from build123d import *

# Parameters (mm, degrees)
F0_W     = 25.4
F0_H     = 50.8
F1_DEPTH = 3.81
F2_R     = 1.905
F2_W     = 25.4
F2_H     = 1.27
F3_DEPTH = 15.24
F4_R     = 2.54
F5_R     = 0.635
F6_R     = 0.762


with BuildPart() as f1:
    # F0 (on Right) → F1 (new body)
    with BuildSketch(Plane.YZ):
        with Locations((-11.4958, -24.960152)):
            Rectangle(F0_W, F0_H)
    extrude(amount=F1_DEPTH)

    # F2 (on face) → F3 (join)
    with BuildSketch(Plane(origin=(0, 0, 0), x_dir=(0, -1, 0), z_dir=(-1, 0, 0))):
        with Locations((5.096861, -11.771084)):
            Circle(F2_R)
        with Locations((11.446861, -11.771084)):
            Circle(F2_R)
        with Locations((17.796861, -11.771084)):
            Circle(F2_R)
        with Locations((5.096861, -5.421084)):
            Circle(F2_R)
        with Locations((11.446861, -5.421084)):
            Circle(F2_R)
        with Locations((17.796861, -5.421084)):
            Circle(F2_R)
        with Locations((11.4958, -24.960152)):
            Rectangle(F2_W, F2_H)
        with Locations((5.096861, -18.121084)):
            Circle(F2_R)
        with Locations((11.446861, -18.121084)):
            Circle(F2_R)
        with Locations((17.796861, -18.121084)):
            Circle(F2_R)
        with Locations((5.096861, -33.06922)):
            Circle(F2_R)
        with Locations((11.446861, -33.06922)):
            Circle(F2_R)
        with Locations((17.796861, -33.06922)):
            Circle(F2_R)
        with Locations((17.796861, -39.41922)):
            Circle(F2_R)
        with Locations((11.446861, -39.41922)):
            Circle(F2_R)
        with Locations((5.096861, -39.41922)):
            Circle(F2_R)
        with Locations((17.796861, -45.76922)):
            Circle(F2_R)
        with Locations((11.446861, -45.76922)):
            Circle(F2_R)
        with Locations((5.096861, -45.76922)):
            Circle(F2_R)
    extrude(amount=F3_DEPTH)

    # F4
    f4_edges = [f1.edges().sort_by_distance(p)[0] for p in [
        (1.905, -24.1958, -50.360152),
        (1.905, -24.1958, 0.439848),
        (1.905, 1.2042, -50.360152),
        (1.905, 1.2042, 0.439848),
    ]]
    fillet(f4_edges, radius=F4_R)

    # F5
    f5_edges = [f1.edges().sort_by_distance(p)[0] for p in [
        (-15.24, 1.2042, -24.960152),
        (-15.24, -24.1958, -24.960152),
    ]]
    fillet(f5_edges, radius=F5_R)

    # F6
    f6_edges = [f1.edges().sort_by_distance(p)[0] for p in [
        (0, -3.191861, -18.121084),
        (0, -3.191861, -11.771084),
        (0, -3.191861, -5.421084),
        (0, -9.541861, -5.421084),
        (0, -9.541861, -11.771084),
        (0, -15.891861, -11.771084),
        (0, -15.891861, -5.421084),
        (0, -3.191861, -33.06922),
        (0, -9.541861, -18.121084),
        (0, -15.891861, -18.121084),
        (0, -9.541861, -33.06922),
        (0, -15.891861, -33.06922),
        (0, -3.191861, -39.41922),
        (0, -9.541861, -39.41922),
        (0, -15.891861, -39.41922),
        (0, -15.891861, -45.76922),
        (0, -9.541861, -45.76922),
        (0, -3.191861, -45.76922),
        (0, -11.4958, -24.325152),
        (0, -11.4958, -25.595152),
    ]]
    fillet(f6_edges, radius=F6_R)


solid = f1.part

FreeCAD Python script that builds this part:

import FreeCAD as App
import Part
import Sketcher

V = App.Vector
Q = App.Units.Quantity


def edges_at(feature, points):
    """Names of the edges that pass closest to the given points."""
    edges = feature.Shape.Edges
    near = lambda p: min(range(len(edges)), key=lambda i: edges[i].distToShape(Part.Vertex(*p))[0])
    return sorted({f"Edge{near(p) + 1}" for p in points})

doc = App.newDocument("Part")
body = doc.addObject("PartDesign::Body", "Body")

sketch1 = doc.addObject("Sketcher::SketchObject", "Sketch")
body.addObject(sketch1)
sketch1.AttachmentSupport = (doc.YZ_Plane, [""])
sketch1.MapMode = "FlatFace"
sketch1.addGeometry(Part.LineSegment(V(-24, 0, 0), V(-24, -50, 0)), False)
sketch1.addGeometry(Part.LineSegment(V(-24, -50, 0), V(1, -50, 0)), False)
sketch1.addGeometry(Part.LineSegment(V(1, -50, 0), V(1, 0, 0)), False)
sketch1.addGeometry(Part.LineSegment(V(1, 0, 0), V(-24, 0, 0)), False)
sketch1.addConstraint(Sketcher.Constraint("Coincident", 0, 2, 1, 1))
sketch1.addConstraint(Sketcher.Constraint("Coincident", 1, 2, 2, 1))
sketch1.addConstraint(Sketcher.Constraint("Coincident", 2, 2, 3, 1))
sketch1.addConstraint(Sketcher.Constraint("Coincident", 3, 2, 0, 1))
sketch1.addConstraint(Sketcher.Constraint("Vertical", 0))
sketch1.addConstraint(Sketcher.Constraint("Horizontal", 1))
sketch1.addConstraint(Sketcher.Constraint("Vertical", 2))
sketch1.addConstraint(Sketcher.Constraint("Horizontal", 3))
sketch1.addConstraint(Sketcher.Constraint("DistanceX", 1, 1, 1, 2, Q("1 in")))
sketch1.addConstraint(Sketcher.Constraint("DistanceY", 0, 2, 0, 1, Q("2 in")))
sketch1.addConstraint(Sketcher.Constraint("DistanceX", 0, 2, -1, 1, Q("24.1958 mm")))
sketch1.addConstraint(Sketcher.Constraint("DistanceY", 0, 2, -1, 1, Q("50.360152 mm")))
pad1 = doc.addObject("PartDesign::Pad", "Pad")
body.addObject(pad1)
pad1.Profile = sketch1
pad1.Length = Q("0.15 in")

sketch2 = doc.addObject("Sketcher::SketchObject", "Sketch001")
body.addObject(sketch2)
sketch2.AttachmentSupport = (doc.YZ_Plane, [""])
sketch2.MapMode = "FlatFace"
sketch2.addGeometry(Part.Circle(V(-5.1, -11.8, 0), V(0, 0, 1), 1.9), False)
sketch2.addGeometry(Part.Circle(V(-11.4, -11.8, 0), V(0, 0, 1), 1.9), False)
sketch2.addGeometry(Part.Circle(V(-17.8, -11.8, 0), V(0, 0, 1), 1.9), False)
sketch2.addGeometry(Part.Circle(V(-5.1, -5.4, 0), V(0, 0, 1), 1.9), False)
sketch2.addGeometry(Part.Circle(V(-11.4, -5.4, 0), V(0, 0, 1), 1.9), False)
sketch2.addGeometry(Part.Circle(V(-17.8, -5.4, 0), V(0, 0, 1), 1.9), False)
sketch2.addGeometry(Part.LineSegment(V(1.2, -24.3, 0), V(1.2, -25.6, 0)), False)
sketch2.addGeometry(Part.LineSegment(V(1.2, -25.6, 0), V(-24.2, -25.6, 0)), False)
sketch2.addGeometry(Part.LineSegment(V(-24.2, -25.6, 0), V(-24.2, -24.3, 0)), False)
sketch2.addGeometry(Part.LineSegment(V(-24.2, -24.3, 0), V(1.2, -24.3, 0)), False)
sketch2.addGeometry(Part.Circle(V(-5.1, -18.1, 0), V(0, 0, 1), 1.9), False)
sketch2.addGeometry(Part.Circle(V(-11.4, -18.1, 0), V(0, 0, 1), 1.9), False)
sketch2.addGeometry(Part.Circle(V(-17.8, -18.1, 0), V(0, 0, 1), 1.9), False)
sketch2.addGeometry(Part.Circle(V(-5.1, -33.1, 0), V(0, 0, 1), 1.9), False)
sketch2.addGeometry(Part.Circle(V(-11.4, -33.1, 0), V(0, 0, 1), 1.9), False)
sketch2.addGeometry(Part.Circle(V(-17.8, -33.1, 0), V(0, 0, 1), 1.9), False)
sketch2.addGeometry(Part.Circle(V(-17.8, -39.4, 0), V(0, 0, 1), 1.9), False)
sketch2.addGeometry(Part.Circle(V(-11.4, -39.4, 0), V(0, 0, 1), 1.9), False)
sketch2.addGeometry(Part.Circle(V(-5.1, -39.4, 0), V(0, 0, 1), 1.9), False)
sketch2.addGeometry(Part.Circle(V(-17.8, -45.8, 0), V(0, 0, 1), 1.9), False)
sketch2.addGeometry(Part.Circle(V(-11.4, -45.8, 0), V(0, 0, 1), 1.9), False)
sketch2.addGeometry(Part.Circle(V(-5.1, -45.8, 0), V(0, 0, 1), 1.9), False)
sketch2.addConstraint(Sketcher.Constraint("Coincident", 6, 2, 7, 1))
sketch2.addConstraint(Sketcher.Constraint("Coincident", 7, 2, 8, 1))
sketch2.addConstraint(Sketcher.Constraint("Coincident", 8, 2, 9, 1))
sketch2.addConstraint(Sketcher.Constraint("Coincident", 9, 2, 6, 1))
sketch2.addConstraint(Sketcher.Constraint("Vertical", 6))
sketch2.addConstraint(Sketcher.Constraint("Horizontal", 7))
sketch2.addConstraint(Sketcher.Constraint("Vertical", 8))
sketch2.addConstraint(Sketcher.Constraint("Horizontal", 9))
sketch2.addConstraint(Sketcher.Constraint("Equal", 0, 1))
sketch2.addConstraint(Sketcher.Constraint("Equal", 1, 2))
sketch2.addConstraint(Sketcher.Constraint("Equal", 2, 3))
sketch2.addConstraint(Sketcher.Constraint("Equal", 3, 4))
sketch2.addConstraint(Sketcher.Constraint("Equal", 4, 5))
sketch2.addConstraint(Sketcher.Constraint("Equal", 5, 10))
sketch2.addConstraint(Sketcher.Constraint("Equal", 10, 11))
sketch2.addConstraint(Sketcher.Constraint("Equal", 11, 12))
sketch2.addConstraint(Sketcher.Constraint("Equal", 12, 13))
sketch2.addConstraint(Sketcher.Constraint("Equal", 13, 14))
sketch2.addConstraint(Sketcher.Constraint("Equal", 14, 15))
sketch2.addConstraint(Sketcher.Constraint("Equal", 15, 16))
sketch2.addConstraint(Sketcher.Constraint("Equal", 16, 17))
sketch2.addConstraint(Sketcher.Constraint("Equal", 17, 18))
sketch2.addConstraint(Sketcher.Constraint("Equal", 18, 19))
sketch2.addConstraint(Sketcher.Constraint("Equal", 19, 20))
sketch2.addConstraint(Sketcher.Constraint("Equal", 20, 21))
sketch2.addConstraint(Sketcher.Constraint("Horizontal", 0, 3, 1, 3))
sketch2.addConstraint(Sketcher.Constraint("Horizontal", 1, 3, 2, 3))
sketch2.addConstraint(Sketcher.Constraint("Horizontal", 3, 3, 4, 3))
sketch2.addConstraint(Sketcher.Constraint("Horizontal", 4, 3, 5, 3))
sketch2.addConstraint(Sketcher.Constraint("Horizontal", 10, 3, 11, 3))
sketch2.addConstraint(Sketcher.Constraint("Horizontal", 11, 3, 12, 3))
sketch2.addConstraint(Sketcher.Constraint("Horizontal", 13, 3, 14, 3))
sketch2.addConstraint(Sketcher.Constraint("Horizontal", 14, 3, 15, 3))
sketch2.addConstraint(Sketcher.Constraint("Horizontal", 16, 3, 17, 3))
sketch2.addConstraint(Sketcher.Constraint("Horizontal", 17, 3, 18, 3))
sketch2.addConstraint(Sketcher.Constraint("Horizontal", 19, 3, 20, 3))
sketch2.addConstraint(Sketcher.Constraint("Horizontal", 20, 3, 21, 3))
sketch2.addConstraint(Sketcher.Constraint("Vertical", 0, 3, 3, 3))
sketch2.addConstraint(Sketcher.Constraint("Vertical", 1, 3, 4, 3))
sketch2.addConstraint(Sketcher.Constraint("Vertical", 2, 3, 5, 3))
sketch2.addConstraint(Sketcher.Constraint("Vertical", 3, 3, 10, 3))
sketch2.addConstraint(Sketcher.Constraint("Vertical", 4, 3, 11, 3))
sketch2.addConstraint(Sketcher.Constraint("Vertical", 5, 3, 12, 3))
sketch2.addConstraint(Sketcher.Constraint("Vertical", 10, 3, 13, 3))
sketch2.addConstraint(Sketcher.Constraint("Vertical", 11, 3, 14, 3))
sketch2.addConstraint(Sketcher.Constraint("Vertical", 12, 3, 15, 3))
sketch2.addConstraint(Sketcher.Constraint("Vertical", 15, 3, 16, 3))
sketch2.addConstraint(Sketcher.Constraint("Vertical", 14, 3, 17, 3))
sketch2.addConstraint(Sketcher.Constraint("Vertical", 13, 3, 18, 3))
sketch2.addConstraint(Sketcher.Constraint("Vertical", 16, 3, 19, 3))
sketch2.addConstraint(Sketcher.Constraint("Vertical", 17, 3, 20, 3))
sketch2.addConstraint(Sketcher.Constraint("Vertical", 18, 3, 21, 3))
sketch2.addConstraint(Sketcher.Constraint("Diameter", 0, Q("0.15 in")))
sketch2.addConstraint(Sketcher.Constraint("DistanceX", 7, 2, 7, 1, Q("1 in")))
sketch2.addConstraint(Sketcher.Constraint("DistanceY", 6, 2, 6, 1, Q("0.05 in")))
sketch2.addConstraint(Sketcher.Constraint("DistanceX", 2, 3, 0, 3, Q("0.5 in")))
sketch2.addConstraint(Sketcher.Constraint("DistanceY", 10, 3, 3, 3, Q("0.5 in")))
sketch2.addConstraint(Sketcher.Constraint("DistanceY", 19, 3, 15, 3, Q("0.5 in")))
sketch2.addConstraint(Sketcher.Constraint("DistanceX", 1, 3, 0, 3, Q("0.25 in")))
sketch2.addConstraint(Sketcher.Constraint("DistanceY", 0, 3, 3, 3, Q("0.25 in")))
sketch2.addConstraint(Sketcher.Constraint("DistanceY", 16, 3, 15, 3, Q("0.25 in")))
sketch2.addConstraint(Sketcher.Constraint("DistanceX", -1, 1, 6, 2, Q("1.2042 mm")))
sketch2.addConstraint(Sketcher.Constraint("DistanceX", 0, 3, -1, 1, Q("5.096861 mm")))
sketch2.addConstraint(Sketcher.Constraint("DistanceY", 13, 3, -1, 1, Q("33.06922 mm")))
sketch2.addConstraint(Sketcher.Constraint("DistanceY", 6, 2, -1, 1, Q("25.595152 mm")))
sketch2.addConstraint(Sketcher.Constraint("DistanceY", 0, 3, -1, 1, Q("11.771084 mm")))
pad2 = doc.addObject("PartDesign::Pad", "Pad001")
body.addObject(pad2)
pad2.Profile = sketch2
pad2.Length = Q("0.6 in")
pad2.Reversed = True
doc.recompute()

fillet = doc.addObject("PartDesign::Fillet", "Fillet")
body.addObject(fillet)
fillet.Base = (pad2, edges_at(pad2, [
    (1.905, -24.196, -50.36),
    (1.905, -24.196, 0.44),
    (1.905, 1.204, -50.36),
    (1.905, 1.204, 0.44),
]))
fillet.Radius = Q("0.1 in")
doc.recompute()

fillet2 = doc.addObject("PartDesign::Fillet", "Fillet001")
body.addObject(fillet2)
fillet2.Base = (fillet, edges_at(fillet, [(-15.24, 1.204, -24.96), (-15.24, -24.196, -24.96)]))
fillet2.Radius = Q("0.025 in")
doc.recompute()

fillet3 = doc.addObject("PartDesign::Fillet", "Fillet002")
body.addObject(fillet3)
fillet3.Base = (fillet2, edges_at(fillet2, [
    (0, -3.192, -18.121),
    (0, -3.192, -11.771),
    (0, -3.192, -5.421),
    (0, -9.542, -5.421),
    (0, -9.542, -11.771),
    (0, -15.892, -11.771),
    (0, -15.892, -5.421),
    (0, -3.192, -33.069),
    (0, -9.542, -18.121),
    (0, -15.892, -18.121),
    (0, -9.542, -33.069),
    (0, -15.892, -33.069),
    (0, -3.192, -39.419),
    (0, -9.542, -39.419),
    (0, -15.892, -39.419),
    (0, -15.892, -45.769),
    (0, -9.542, -45.769),
    (0, -3.192, -45.769),
    (0, -11.496, -24.325),
    (0, -11.496, -25.595),
]))
fillet3.Radius = Q("0.03 in")

doc.recompute()
